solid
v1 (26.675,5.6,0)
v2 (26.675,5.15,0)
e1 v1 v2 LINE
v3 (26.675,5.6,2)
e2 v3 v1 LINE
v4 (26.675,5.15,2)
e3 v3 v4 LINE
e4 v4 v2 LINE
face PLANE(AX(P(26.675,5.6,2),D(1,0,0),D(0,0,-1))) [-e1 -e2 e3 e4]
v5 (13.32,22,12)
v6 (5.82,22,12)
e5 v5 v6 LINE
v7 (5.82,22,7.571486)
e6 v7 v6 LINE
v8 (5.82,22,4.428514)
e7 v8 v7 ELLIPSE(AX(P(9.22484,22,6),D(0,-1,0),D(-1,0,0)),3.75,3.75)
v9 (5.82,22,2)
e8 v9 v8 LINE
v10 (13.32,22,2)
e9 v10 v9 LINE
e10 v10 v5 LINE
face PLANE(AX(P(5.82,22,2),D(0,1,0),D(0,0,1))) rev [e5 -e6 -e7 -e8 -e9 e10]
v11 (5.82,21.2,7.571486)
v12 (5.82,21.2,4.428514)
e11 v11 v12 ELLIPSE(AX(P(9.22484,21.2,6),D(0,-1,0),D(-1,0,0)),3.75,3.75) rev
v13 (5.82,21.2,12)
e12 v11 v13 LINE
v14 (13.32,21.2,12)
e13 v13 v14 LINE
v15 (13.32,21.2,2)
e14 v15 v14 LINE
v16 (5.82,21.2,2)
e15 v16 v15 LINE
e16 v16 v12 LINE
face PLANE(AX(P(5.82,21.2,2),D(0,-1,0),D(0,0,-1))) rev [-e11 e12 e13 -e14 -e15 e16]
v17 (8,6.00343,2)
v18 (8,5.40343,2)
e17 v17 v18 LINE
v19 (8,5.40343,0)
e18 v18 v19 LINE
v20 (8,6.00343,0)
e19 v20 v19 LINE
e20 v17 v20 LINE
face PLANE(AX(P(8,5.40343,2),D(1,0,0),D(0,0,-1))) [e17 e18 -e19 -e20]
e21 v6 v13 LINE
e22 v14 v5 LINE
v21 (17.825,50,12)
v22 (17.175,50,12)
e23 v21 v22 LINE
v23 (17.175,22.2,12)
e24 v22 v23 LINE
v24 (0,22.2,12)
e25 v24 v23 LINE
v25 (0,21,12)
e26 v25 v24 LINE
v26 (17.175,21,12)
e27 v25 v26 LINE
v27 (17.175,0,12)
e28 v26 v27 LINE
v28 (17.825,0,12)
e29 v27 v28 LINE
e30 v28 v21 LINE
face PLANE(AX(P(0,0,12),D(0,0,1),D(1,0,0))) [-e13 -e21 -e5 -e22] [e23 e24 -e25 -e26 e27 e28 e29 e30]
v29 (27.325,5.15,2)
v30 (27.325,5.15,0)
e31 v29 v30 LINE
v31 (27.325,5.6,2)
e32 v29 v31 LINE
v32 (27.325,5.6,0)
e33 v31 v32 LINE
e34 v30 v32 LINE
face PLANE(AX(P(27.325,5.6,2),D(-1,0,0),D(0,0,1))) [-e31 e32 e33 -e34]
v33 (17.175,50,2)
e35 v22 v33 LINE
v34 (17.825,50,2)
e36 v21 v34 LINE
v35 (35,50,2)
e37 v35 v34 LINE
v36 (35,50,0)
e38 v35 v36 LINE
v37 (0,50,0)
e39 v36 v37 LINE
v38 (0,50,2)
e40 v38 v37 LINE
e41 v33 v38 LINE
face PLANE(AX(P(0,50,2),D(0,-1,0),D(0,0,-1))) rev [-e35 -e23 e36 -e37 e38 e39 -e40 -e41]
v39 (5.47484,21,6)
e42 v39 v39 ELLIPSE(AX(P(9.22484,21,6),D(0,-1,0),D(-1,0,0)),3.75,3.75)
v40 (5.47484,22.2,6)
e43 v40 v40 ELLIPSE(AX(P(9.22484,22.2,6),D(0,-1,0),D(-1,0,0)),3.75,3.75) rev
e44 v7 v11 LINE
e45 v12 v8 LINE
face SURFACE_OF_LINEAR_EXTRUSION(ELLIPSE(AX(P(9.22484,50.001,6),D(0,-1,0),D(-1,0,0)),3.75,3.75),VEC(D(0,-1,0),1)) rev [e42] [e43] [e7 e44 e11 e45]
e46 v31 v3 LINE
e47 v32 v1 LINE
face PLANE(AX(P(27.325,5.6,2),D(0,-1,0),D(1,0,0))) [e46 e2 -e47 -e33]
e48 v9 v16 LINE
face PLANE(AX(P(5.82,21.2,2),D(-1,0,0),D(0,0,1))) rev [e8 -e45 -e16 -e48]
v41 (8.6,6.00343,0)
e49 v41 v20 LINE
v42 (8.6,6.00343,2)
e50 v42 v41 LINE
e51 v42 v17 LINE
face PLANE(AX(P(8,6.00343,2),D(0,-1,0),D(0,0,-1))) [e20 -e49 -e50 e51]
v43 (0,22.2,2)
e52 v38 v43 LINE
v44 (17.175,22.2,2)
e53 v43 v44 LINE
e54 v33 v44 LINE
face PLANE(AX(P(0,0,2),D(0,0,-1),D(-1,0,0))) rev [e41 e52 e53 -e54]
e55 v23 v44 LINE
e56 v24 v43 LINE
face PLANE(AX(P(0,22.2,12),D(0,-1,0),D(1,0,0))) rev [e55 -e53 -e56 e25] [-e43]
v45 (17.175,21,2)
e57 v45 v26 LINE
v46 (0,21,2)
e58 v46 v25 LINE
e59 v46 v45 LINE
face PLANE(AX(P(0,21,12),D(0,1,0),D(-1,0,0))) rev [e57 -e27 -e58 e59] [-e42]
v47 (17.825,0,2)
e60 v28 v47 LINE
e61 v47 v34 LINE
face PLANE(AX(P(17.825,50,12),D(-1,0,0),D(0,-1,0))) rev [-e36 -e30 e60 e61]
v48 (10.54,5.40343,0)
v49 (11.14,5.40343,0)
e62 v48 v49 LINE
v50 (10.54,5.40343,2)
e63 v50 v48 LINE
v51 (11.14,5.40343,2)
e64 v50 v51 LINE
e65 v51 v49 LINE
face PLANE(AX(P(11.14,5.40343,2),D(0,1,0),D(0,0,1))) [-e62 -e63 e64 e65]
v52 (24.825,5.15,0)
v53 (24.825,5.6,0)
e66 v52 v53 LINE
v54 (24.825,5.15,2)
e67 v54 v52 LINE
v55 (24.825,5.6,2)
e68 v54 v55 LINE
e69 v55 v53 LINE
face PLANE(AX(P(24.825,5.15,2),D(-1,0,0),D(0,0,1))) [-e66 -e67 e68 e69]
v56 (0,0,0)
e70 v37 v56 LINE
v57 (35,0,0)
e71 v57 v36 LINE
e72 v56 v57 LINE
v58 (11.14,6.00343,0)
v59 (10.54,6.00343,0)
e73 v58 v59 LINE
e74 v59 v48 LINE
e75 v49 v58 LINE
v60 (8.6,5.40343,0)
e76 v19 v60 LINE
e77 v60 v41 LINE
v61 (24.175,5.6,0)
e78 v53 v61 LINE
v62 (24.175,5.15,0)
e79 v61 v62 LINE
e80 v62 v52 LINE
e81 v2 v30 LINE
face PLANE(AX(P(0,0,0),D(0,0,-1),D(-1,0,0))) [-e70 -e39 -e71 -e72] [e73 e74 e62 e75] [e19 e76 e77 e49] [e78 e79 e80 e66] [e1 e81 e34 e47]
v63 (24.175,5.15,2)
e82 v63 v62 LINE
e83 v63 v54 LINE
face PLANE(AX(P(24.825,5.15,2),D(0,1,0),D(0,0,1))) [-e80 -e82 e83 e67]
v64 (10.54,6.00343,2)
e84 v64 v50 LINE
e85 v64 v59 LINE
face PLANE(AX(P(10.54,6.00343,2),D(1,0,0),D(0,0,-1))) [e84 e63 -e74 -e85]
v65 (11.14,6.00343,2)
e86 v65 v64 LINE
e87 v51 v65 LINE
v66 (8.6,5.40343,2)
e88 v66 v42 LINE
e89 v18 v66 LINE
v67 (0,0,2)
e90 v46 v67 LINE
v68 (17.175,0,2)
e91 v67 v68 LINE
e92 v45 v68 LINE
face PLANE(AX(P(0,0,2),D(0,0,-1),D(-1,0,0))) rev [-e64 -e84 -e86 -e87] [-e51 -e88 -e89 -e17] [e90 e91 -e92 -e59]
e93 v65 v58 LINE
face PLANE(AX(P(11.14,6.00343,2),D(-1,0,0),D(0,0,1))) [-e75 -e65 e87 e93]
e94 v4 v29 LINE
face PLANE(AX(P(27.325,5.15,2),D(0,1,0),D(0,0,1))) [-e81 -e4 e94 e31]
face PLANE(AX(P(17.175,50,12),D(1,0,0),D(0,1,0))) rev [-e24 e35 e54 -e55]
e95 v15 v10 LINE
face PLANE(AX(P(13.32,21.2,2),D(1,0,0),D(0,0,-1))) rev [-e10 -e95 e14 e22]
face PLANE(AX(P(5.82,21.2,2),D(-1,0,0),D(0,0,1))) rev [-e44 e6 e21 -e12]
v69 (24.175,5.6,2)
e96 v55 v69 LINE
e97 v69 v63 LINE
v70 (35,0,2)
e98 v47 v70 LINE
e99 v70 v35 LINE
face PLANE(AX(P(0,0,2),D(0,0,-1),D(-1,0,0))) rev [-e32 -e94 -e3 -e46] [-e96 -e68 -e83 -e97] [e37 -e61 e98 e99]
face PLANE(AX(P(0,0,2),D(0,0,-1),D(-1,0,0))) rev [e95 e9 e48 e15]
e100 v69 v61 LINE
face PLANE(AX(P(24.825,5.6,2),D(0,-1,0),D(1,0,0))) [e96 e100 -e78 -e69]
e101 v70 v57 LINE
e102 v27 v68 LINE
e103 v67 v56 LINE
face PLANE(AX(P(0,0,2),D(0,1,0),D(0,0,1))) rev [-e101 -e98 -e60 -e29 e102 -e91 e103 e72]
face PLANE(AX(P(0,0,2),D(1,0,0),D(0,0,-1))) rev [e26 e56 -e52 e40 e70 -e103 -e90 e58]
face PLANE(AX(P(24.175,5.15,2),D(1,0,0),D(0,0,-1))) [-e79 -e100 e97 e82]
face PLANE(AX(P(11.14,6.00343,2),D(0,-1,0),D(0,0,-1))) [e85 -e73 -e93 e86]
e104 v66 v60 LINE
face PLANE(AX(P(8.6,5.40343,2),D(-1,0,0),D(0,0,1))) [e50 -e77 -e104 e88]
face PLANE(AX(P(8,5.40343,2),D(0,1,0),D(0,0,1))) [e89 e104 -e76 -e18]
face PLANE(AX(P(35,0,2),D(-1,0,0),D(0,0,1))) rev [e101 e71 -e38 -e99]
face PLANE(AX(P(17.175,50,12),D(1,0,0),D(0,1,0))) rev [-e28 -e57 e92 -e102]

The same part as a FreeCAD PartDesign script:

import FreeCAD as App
import Part
import Sketcher

doc = App.newDocument("Part")
params = doc.addObject("Spreadsheet::Sheet", "Params")
for row, (alias, value) in enumerate([
    ("sketch1_width", "35 mm"),
    ("sketch1_height", "50 mm"),
    ("sketch1_width2", "0.6 mm"),
    ("sketch1_width3", "0.65 mm"),
    ("sketch1_height2", "0.45 mm"),
    ("pad1_length", "2 mm"),
    ("sketch2_height", "50 mm"),
    ("sketch2_width", "0.65 mm"),
    ("pad2_length", "10 mm"),
    ("sketch3_height", "10 mm"),
    ("sketch3_width", "1.2 mm"),
    ("pad3_length", "17.175 mm"),
    ("sketch4_width", "7.5 mm"),
    ("sketch4_height", "0.8 mm"),
    ("pocket1_length", "10 mm"),
    ("pocket2_length", "1.2 mm"),
], start=1):
    params.set(f"A{row}", alias)
    params.set(f"B{row}", "=" + value)
    params.setAlias(f"B{row}", alias)

body = doc.addObject("PartDesign::Body", "Body")

sketch1 = body.newObject("Sketcher::SketchObject", "Sketch")
sketch1.AttachmentSupport = (doc.getObject("XY_Plane"), [""])
sketch1.MapMode = "FlatFace"
sketch1.addGeometry([
    Part.LineSegment(App.Vector(0, 50, 0), App.Vector(0, 0, 0)),
    Part.LineSegment(App.Vector(0, 0, 0), App.Vector(35, 0, 0)),
    Part.LineSegment(App.Vector(35, 0, 0), App.Vector(35, 50, 0)),
    Part.LineSegment(App.Vector(35, 50, 0), App.Vector(0, 50, 0)),
    Part.LineSegment(App.Vector(24.82, 5.15, 0), App.Vector(24.18, 5.15, 0)),
    Part.LineSegment(App.Vector(24.18, 5.15, 0), App.Vector(24.18, 5.6, 0)),
    Part.LineSegment(App.Vector(24.18, 5.6, 0), App.Vector(24.82, 5.6, 0)),
    Part.LineSegment(App.Vector(24.82, 5.6, 0), App.Vector(24.82, 5.15, 0)),
    Part.LineSegment(App.Vector(27.32, 5.15, 0), App.Vector(26.68, 5.15, 0)),
    Part.LineSegment(App.Vector(26.68, 5.15, 0), App.Vector(26.68, 5.6, 0)),
    Part.LineSegment(App.Vector(26.68, 5.6, 0), App.Vector(27.32, 5.6, 0)),
    Part.LineSegment(App.Vector(27.32, 5.6, 0), App.Vector(27.32, 5.15, 0)),
    Part.LineSegment(App.Vector(8.6, 5.4, 0), App.Vector(8, 5.4, 0)),
    Part.LineSegment(App.Vector(8, 5.4, 0), App.Vector(8, 6, 0)),
    Part.LineSegment(App.Vector(8, 6, 0), App.Vector(8.6, 6, 0)),
    Part.LineSegment(App.Vector(8.6, 6, 0), App.Vector(8.6, 5.4, 0)),
    Part.LineSegment(App.Vector(11.14, 5.4, 0), App.Vector(10.54, 5.4, 0)),
    Part.LineSegment(App.Vector(10.54, 5.4, 0), App.Vector(10.54, 6, 0)),
    Part.LineSegment(App.Vector(10.54, 6, 0), App.Vector(11.14, 6, 0)),
    Part.LineSegment(App.Vector(11.14, 6, 0), App.Vector(11.14, 5.4, 0)),
], False)
sketch1.addConstraint([
    Sketcher.Constraint("Coincident", 0, 2, 1, 1),
    Sketcher.Constraint("Coincident", 1, 2, 2, 1),
    Sketcher.Constraint("Coincident", 2, 2, 3, 1),
    Sketcher.Constraint("Coincident", 3, 2, 0, 1),
    Sketcher.Constraint("Coincident", 4, 2, 5, 1),
    Sketcher.Constraint("Coincident", 5, 2, 6, 1),
    Sketcher.Constraint("Coincident", 6, 2, 7, 1),
    Sketcher.Constraint("Coincident", 7, 2, 4, 1),
    Sketcher.Constraint("Coincident", 8, 2, 9, 1),
    Sketcher.Constraint("Coincident", 9, 2, 10, 1),
    Sketcher.Constraint("Coincident", 10, 2, 11, 1),
    Sketcher.Constraint("Coincident", 11, 2, 8, 1),
    Sketcher.Constraint("Coincident", 12, 2, 13, 1),
    Sketcher.Constraint("Coincident", 13, 2, 14, 1),
    Sketcher.Constraint("Coincident", 14, 2, 15, 1),
    Sketcher.Constraint("Coincident", 15, 2, 12, 1),
    Sketcher.Constraint("Coincident", 16, 2, 17, 1),
    Sketcher.Constraint("Coincident", 17, 2, 18, 1),
    Sketcher.Constraint("Coincident", 18, 2, 19, 1),
    Sketcher.Constraint("Coincident", 19, 2, 16, 1),
    Sketcher.Constraint("Vertical", 0),
    Sketcher.Constraint("Horizontal", 1),
    Sketcher.Constraint("Vertical", 2),
    Sketcher.Constraint("Horizontal", 3),
    Sketcher.Constraint("Horizontal", 4),
    Sketcher.Constraint("Vertical", 5),
    Sketcher.Constraint("Horizontal", 6),
    Sketcher.Constraint("Vertical", 7),
    Sketcher.Constraint("Horizontal", 8),
    Sketcher.Constraint("Vertical", 9),
    Sketcher.Constraint("Horizontal", 10),
    Sketcher.Constraint("Vertical", 11),
    Sketcher.Constraint("Horizontal", 12),
    Sketcher.Constraint("Vertical", 13),
    Sketcher.Constraint("Horizontal", 14),
    Sketcher.Constraint("Vertical", 15),
    Sketcher.Constraint("Horizontal", 16),
    Sketcher.Constraint("Vertical", 17),
    Sketcher.Constraint("Horizontal", 18),
    Sketcher.Constraint("Vertical", 19),
    Sketcher.Constraint("Coincident", 0, 2, -1, 1),
    Sketcher.Constraint("Horizontal", 7, 2, 8, 2),
    Sketcher.Constraint("Horizontal", 6, 2, 9, 2),
    Sketcher.Constraint("Horizontal", 15, 2, 16, 2),
    Sketcher.Constraint("Horizontal", 14, 2, 17, 2),
    Sketcher.Constraint("Equal", 6, 8),
    Sketcher.Constraint("Equal", 14, 16),
    Sketcher.Constraint("Equal", 18, 13),
    Sketcher.Constraint("DistanceX", 1, 1, 1, 2, 35.0),
    Sketcher.Constraint("DistanceY", 0, 2, 0, 1, 50.0),
    Sketcher.Constraint("DistanceX", 12, 2, 12, 1, 0.6),
    Sketcher.Constraint("DistanceX", -1, 1, 12, 2, 8.0),
    Sketcher.Constraint("DistanceX", 4, 2, 4, 1, 0.65),
    Sketcher.Constraint("DistanceY", 5, 1, 5, 2, 0.45),
    Sketcher.Constraint("DistanceY", -1, 1, 5, 2, 5.6),
    Sketcher.Constraint("DistanceX", 4, 2, 8, 2, 2.5),
    Sketcher.Constraint("DistanceX", -1, 1, 16, 2, 10.54),
    Sketcher.Constraint("DistanceX", -1, 1, 4, 2, 24.175),
    Sketcher.Constraint("DistanceY", -1, 1, 12, 2, 5.40343),
])
sketch1.setExpression("Constraints[48]", "Params.sketch1_width")
sketch1.setExpression("Constraints[49]", "Params.sketch1_height")
sketch1.setExpression("Constraints[50]", "Params.sketch1_width2")
sketch1.setExpression("Constraints[52]", "Params.sketch1_width3")
sketch1.setExpression("Constraints[53]", "Params.sketch1_height2")
pad1 = body.newObject("PartDesign::Pad", "Pad")
pad1.Profile = sketch1
pad1.setExpression("Length", "Params.pad1_length")

sketch2 = body.newObject("Sketcher::SketchObject", "Sketch001")
sketch2.AttachmentSupport = (doc.getObject("XY_Plane"), [""])
sketch2.MapMode = "FlatFace"
sketch2.AttachmentOffset = App.Placement(App.Vector(0, 0, 2), App.Rotation())
sketch2.addGeometry([
    Part.LineSegment(App.Vector(17.2, 50, 0), App.Vector(17.2, 0, 0)),
    Part.LineSegment(App.Vector(17.2, 0, 0), App.Vector(17.8, 0, 0)),
    Part.LineSegment(App.Vector(17.8, 0, 0), App.Vector(17.8, 50, 0)),
    Part.LineSegment(App.Vector(17.8, 50, 0), App.Vector(17.2, 50, 0)),
], False)
sketch2.addConstraint([
    Sketcher.Constraint("Coincident", 0, 2, 1, 1),
    Sketcher.Constraint("Coincident", 1, 2, 2, 1),
    Sketcher.Constraint("Coincident", 2, 2, 3, 1),
    Sketcher.Constraint("Coincident", 3, 2, 0, 1),
    Sketcher.Constraint("Vertical", 0),
    Sketcher.Constraint("Horizontal", 1),
    Sketcher.Constraint("Vertical", 2),
    Sketcher.Constraint("Horizontal", 3),
    Sketcher.Constraint("PointOnObject", 0, 2, -1),
    Sketcher.Constraint("DistanceY", 0, 2, 0, 1, 50.0),
    Sketcher.Constraint("DistanceX", 1, 1, 1, 2, 0.65),
    Sketcher.Constraint("DistanceX", -1, 1, 0, 2, 17.175),
])
sketch2.setExpression("Constraints[9]", "Params.sketch2_height")
sketch2.setExpression("Constraints[10]", "Params.sketch2_width")
pad2 = body.newObject("PartDesign::Pad", "Pad001")
pad2.Profile = sketch2
pad2.setExpression("Length", "Params.pad2_length")

sketch3 = body.newObject("Sketcher::SketchObject", "Sketch002")
sketch3.AttachmentSupport = (doc.getObject("YZ_Plane"), [""])
sketch3.MapMode = "FlatFace"
sketch3.AttachmentOffset = App.Placement(App.Vector(0, 0, 17.175), App.Rotation())
sketch3.addGeometry([
    Part.LineSegment(App.Vector(22.2, 2, 0), App.Vector(21, 2, 0)),
    Part.LineSegment(App.Vector(21, 2, 0), App.Vector(21, 12, 0)),
    Part.LineSegment(App.Vector(21, 12, 0), App.Vector(22.2, 12, 0)),
    Part.LineSegment(App.Vector(22.2, 12, 0), App.Vector(22.2, 2, 0)),
], False)
sketch3.addConstraint([
    Sketcher.Constraint("Coincident", 0, 2, 1, 1),
    Sketcher.Constraint("Coincident", 1, 2, 2, 1),
    Sketcher.Constraint("Coincident", 2, 2, 3, 1),
    Sketcher.Constraint("Coincident", 3, 2, 0, 1),
    Sketcher.Constraint("Horizontal", 0),
    Sketcher.Constraint("Vertical", 1),
    Sketcher.Constraint("Horizontal", 2),
    Sketcher.Constraint("Vertical", 3),
    Sketcher.Constraint("DistanceY", 1, 1, 1, 2, 10.0),
    Sketcher.Constraint("DistanceX", 0, 2, 0, 1, 1.2),
    Sketcher.Constraint("DistanceX", -1, 1, 0, 2, 21.0),
    Sketcher.Constraint("DistanceY", -1, 1, 0, 2, 2.0),
])
sketch3.setExpression("Constraints[8]", "Params.sketch3_height")
sketch3.setExpression("Constraints[9]", "Params.sketch3_width")
pad3 = body.newObject("PartDesign::Pad", "Pad002")
pad3.Profile = sketch3
pad3.setExpression("Length", "Params.pad3_length")
pad3.Reversed = True

sketch4 = body.newObject("Sketcher::SketchObject", "Sketch003")
sketch4.AttachmentSupport = (doc.getObject("XY_Plane"), [""])
sketch4.MapMode = "FlatFace"
sketch4.AttachmentOffset = App.Placement(App.Vector(0, 0, 12), App.Rotation())
sketch4.addGeometry([
    Part.LineSegment(App.Vector(5.8, 22, 0), App.Vector(5.8, 21.2, 0)),
    Part.LineSegment(App.Vector(5.8, 21.2, 0), App.Vector(13.3, 21.2, 0)),
    Part.LineSegment(App.Vector(13.3, 21.2, 0), App.Vector(13.3, 22, 0)),
    Part.LineSegment(App.Vector(13.3, 22, 0), App.Vector(5.8, 22, 0)),
], False)
sketch4.addConstraint([
    Sketcher.Constraint("Coincident", 0, 2, 1, 1),
    Sketcher.Constraint("Coincident", 1, 2, 2, 1),
    Sketcher.Constraint("Coincident", 2, 2, 3, 1),
    Sketcher.Constraint("Coincident", 3, 2, 0, 1),
    Sketcher.Constraint("Vertical", 0),
    Sketcher.Constraint("Horizontal", 1),
    Sketcher.Constraint("Vertical", 2),
    Sketcher.Constraint("Horizontal", 3),
    Sketcher.Constraint("DistanceX", 1, 1, 1, 2, 7.5),
    Sketcher.Constraint("DistanceY", 0, 2, 0, 1, 0.8),
    Sketcher.Constraint("DistanceY", -1, 1, 2, 2, 22.0),
    Sketcher.Constraint("DistanceX", -1, 1, 0, 2, 5.82),
])
sketch4.setExpression("Constraints[8]", "Params.sketch4_width")
sketch4.setExpression("Constraints[9]", "Params.sketch4_height")
pocket1 = body.newObject("PartDesign::Pocket", "Pocket")
pocket1.Profile = sketch4
pocket1.setExpression("Length", "Params.pocket1_length")

sketch5 = body.newObject("Sketcher::SketchObject", "Sketch004")
sketch5.AttachmentSupport = (doc.getObject("XZ_Plane"), [""])
sketch5.MapMode = "FlatFace"
sketch5.AttachmentOffset = App.Placement(App.Vector(0, 0, -21), App.Rotation())
sketch5.addGeometry(Part.Ellipse(App.Vector(5.47484, 6, 0), App.Vector(9.22484, 2.25, 0), App.Vector(9.22484, 6, 0)), False)
sketch5.addConstraint(Sketcher.Constraint("Block", 0))
pocket2 = body.newObject("PartDesign::Pocket", "Pocket001")
pocket2.Profile = sketch5
pocket2.setExpression("Length", "Params.pocket2_length")

doc.recompute()
